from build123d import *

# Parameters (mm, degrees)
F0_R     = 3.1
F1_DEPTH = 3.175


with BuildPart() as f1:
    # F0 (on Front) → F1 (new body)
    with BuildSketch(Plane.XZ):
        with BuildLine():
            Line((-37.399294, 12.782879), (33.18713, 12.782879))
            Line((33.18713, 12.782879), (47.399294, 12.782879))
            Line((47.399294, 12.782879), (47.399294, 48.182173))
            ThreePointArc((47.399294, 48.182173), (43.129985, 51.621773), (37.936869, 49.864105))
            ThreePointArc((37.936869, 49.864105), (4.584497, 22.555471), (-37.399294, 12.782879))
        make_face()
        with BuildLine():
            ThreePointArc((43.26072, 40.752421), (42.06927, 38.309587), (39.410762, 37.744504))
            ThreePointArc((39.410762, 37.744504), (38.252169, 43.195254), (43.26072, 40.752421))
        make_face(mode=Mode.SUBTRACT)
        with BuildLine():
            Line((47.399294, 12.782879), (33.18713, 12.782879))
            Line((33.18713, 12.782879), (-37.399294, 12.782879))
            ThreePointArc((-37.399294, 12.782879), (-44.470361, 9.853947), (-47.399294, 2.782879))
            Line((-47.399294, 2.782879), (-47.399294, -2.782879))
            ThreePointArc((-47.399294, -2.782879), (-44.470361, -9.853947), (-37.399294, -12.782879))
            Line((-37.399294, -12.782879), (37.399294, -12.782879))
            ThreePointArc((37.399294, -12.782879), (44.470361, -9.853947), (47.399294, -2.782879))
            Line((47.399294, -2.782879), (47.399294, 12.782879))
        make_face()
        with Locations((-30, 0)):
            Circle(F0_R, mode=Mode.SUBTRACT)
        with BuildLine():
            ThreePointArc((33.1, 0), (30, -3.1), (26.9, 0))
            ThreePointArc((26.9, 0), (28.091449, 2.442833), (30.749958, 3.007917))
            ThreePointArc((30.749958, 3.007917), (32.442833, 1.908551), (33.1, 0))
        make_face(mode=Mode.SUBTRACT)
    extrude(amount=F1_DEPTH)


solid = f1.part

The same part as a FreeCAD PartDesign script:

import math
import FreeCAD as App
import Part
import Sketcher
Q = App.Units.Quantity

doc = App.newDocument("Part")
body = doc.addObject("PartDesign::Body", "Body")

# Sketch on XZ plane
sketch1 = doc.addObject("Sketcher::SketchObject", "Sketch")
body.addObject(sketch1)
sketch1.AttachmentSupport = (doc.XZ_Plane, [""])
sketch1.MapMode = "FlatFace"
sketch1.addGeometry(Part.ArcOfCircle(Part.Circle(App.Vector(-37.4, 107.9, 0), App.Vector(0, 0, 1), 95.1), math.radians(-90), math.radians(-38)), False)
sketch1.addGeometry(Part.ArcOfCircle(Part.Circle(App.Vector(-37.4, 2.8, 0), App.Vector(0, 0, 1), 10), math.radians(90), math.radians(180)), False)
sketch1.addGeometry(Part.LineSegment(App.Vector(-47.4, 2.8, 0), App.Vector(-47.4, -2.8, 0)), False)
sketch1.addGeometry(Part.ArcOfCircle(Part.Circle(App.Vector(-37.4, -2.8, 0), App.Vector(0, 0, 1), 10), math.radians(-180), math.radians(-90)), False)
sketch1.addGeometry(Part.LineSegment(App.Vector(-37.4, -12.8, 0), App.Vector(37.4, -12.8, 0)), False)
sketch1.addGeometry(Part.ArcOfCircle(Part.Circle(App.Vector(37.4, -2.8, 0), App.Vector(0, 0, 1), 10), math.radians(-90), math.radians(0)), False)
sketch1.addGeometry(Part.LineSegment(App.Vector(47.4, -2.8, 0), App.Vector(47.4, 48.2, 0)), False)
sketch1.addGeometry(Part.ArcOfCircle(Part.Circle(App.Vector(42.1, 46, 0), App.Vector(0, 0, 1), 5.7), math.radians(22), math.radians(137)), False)
sketch1.addGeometry(Part.Circle(App.Vector(-30, 0, 0), App.Vector(0, 0, 1), 3.1), False)
sketch1.addGeometry(Part.ArcOfCircle(Part.Circle(App.Vector(30, 0, 0), App.Vector(0, 0, 1), 3.1), math.radians(0), math.radians(76)), False)
sketch1.addGeometry(Part.ArcOfCircle(Part.Circle(App.Vector(30, 0, 0), App.Vector(0, 0, 1), 3.1), math.radians(180), math.radians(360)), False)
sketch1.addGeometry(Part.ArcOfCircle(Part.Circle(App.Vector(30, 0, 0), App.Vector(0, 0, 1), 3.1), math.radians(76), math.radians(180)), False)
sketch1.addGeometry(Part.ArcOfCircle(Part.Circle(App.Vector(40.2, 40.8, 0), App.Vector(0, 0, 1), 3.1), math.radians(0), math.radians(256)), False)
sketch1.addGeometry(Part.ArcOfCircle(Part.Circle(App.Vector(40.2, 40.8, 0), App.Vector(0, 0, 1), 3.1), math.radians(-104), math.radians(0)), False)
sketch1.addConstraint(Sketcher.Constraint("Tangent", 0, 1, 1, 1))
sketch1.addConstraint(Sketcher.Constraint("Tangent", 1, 2, 2, 1))
sketch1.addConstraint(Sketcher.Constraint("Tangent", 2, 2, 3, 1))
sketch1.addConstraint(Sketcher.Constraint("Tangent", 3, 2, 4, 1))
sketch1.addConstraint(Sketcher.Constraint("Tangent", 4, 2, 5, 1))
sketch1.addConstraint(Sketcher.Constraint("Tangent", 5, 2, 6, 1))
sketch1.addConstraint(Sketcher.Constraint("Coincident", 6, 2, 7, 1))
sketch1.addConstraint(Sketcher.Constraint("Coincident", 7, 2, 0, 2))
sketch1.addConstraint(Sketcher.Constraint("Tangent", 9, 1, 10, 2))
sketch1.addConstraint(Sketcher.Constraint("Tangent", 10, 1, 11, 2))
sketch1.addConstraint(Sketcher.Constraint("Tangent", 11, 1, 9, 2))
sketch1.addConstraint(Sketcher.Constraint("Tangent", 12, 1, 13, 2))
sketch1.addConstraint(Sketcher.Constraint("Coincident", 13, 1, 12, 2))
sketch1.addConstraint(Sketcher.Constraint("Vertical", 2))
sketch1.addConstraint(Sketcher.Constraint("Horizontal", 4))
sketch1.addConstraint(Sketcher.Constraint("Vertical", 6))
sketch1.addConstraint(Sketcher.Constraint("Equal", 1, 3))
sketch1.addConstraint(Sketcher.Constraint("Equal", 3, 5))
sketch1.addConstraint(Sketcher.Constraint("Equal", 8, 9))
sketch1.addConstraint(Sketcher.Constraint("Equal", 11, 12))
sketch1.addConstraint(Sketcher.Constraint("Symmetric", 1, 3, 5, 3, -1, 1))
sketch1.addConstraint(Sketcher.Constraint("Symmetric", 8, 3, 9, 3, -1, 1))
sketch1.addConstraint(Sketcher.Constraint("PointOnObject", 8, 3, -1))
sketch1.addConstraint(Sketcher.Constraint("PointOnObject", 9, 1, -1))
sketch1.addConstraint(Sketcher.Constraint("PointOnObject", 10, 1, -1))
sketch1.addConstraint(Sketcher.Constraint("Horizontal", 13, 3, 12, 1))
sketch1.addConstraint(Sketcher.Constraint("Radius", 1, Q("10.000001 mm")))
sketch1.addConstraint(Sketcher.Constraint("Diameter", 8, Q("6.2 mm")))
sketch1.addConstraint(Sketcher.Constraint("DistanceX", 8, 3, -1, 1, Q("30 mm")))
sketch1.addConstraint(Sketcher.Constraint("Radius", 7, Q("5.694142 mm")))
sketch1.addConstraint(Sketcher.Constraint("Radius", 0, Q("95.069065 mm")))
sketch1.addConstraint(Sketcher.Constraint("DistanceY", 5, 3, 12, 3, Q("43.535299 mm")))
sketch1.addConstraint(Sketcher.Constraint("DistanceY", 7, 3, 7, 2, Q("3.848599 mm")))
sketch1.addConstraint(Sketcher.Constraint("DistanceY", 13, 1, 7, 2, Q("12.119601 mm")))
sketch1.addConstraint(Sketcher.Constraint("DistanceX", 4, 1, 4, 2, Q("74.798588 mm")))
sketch1.addConstraint(Sketcher.Constraint("DistanceY", 2, 2, 2, 1, Q("5.565758 mm")))
sketch1.addConstraint(Sketcher.Constraint("DistanceY", 6, 1, 6, 2, Q("50.965052 mm")))
sketch1.addConstraint(Sketcher.Constraint("DistanceX", -1, 1, 7, 3, Q("42.133479 mm")))
sketch1.addConstraint(Sketcher.Constraint("DistanceX", -1, 1, 12, 3, Q("40.16072 mm")))
sketch1.addConstraint(Sketcher.Constraint("DistanceX", 9, 3, 11, 1, Q("0.749959 mm")))
pad1 = doc.addObject("PartDesign::Pad", "Pad")
body.addObject(pad1)
pad1.Profile = sketch1
pad1.Length = 3.175

doc.recompute()
